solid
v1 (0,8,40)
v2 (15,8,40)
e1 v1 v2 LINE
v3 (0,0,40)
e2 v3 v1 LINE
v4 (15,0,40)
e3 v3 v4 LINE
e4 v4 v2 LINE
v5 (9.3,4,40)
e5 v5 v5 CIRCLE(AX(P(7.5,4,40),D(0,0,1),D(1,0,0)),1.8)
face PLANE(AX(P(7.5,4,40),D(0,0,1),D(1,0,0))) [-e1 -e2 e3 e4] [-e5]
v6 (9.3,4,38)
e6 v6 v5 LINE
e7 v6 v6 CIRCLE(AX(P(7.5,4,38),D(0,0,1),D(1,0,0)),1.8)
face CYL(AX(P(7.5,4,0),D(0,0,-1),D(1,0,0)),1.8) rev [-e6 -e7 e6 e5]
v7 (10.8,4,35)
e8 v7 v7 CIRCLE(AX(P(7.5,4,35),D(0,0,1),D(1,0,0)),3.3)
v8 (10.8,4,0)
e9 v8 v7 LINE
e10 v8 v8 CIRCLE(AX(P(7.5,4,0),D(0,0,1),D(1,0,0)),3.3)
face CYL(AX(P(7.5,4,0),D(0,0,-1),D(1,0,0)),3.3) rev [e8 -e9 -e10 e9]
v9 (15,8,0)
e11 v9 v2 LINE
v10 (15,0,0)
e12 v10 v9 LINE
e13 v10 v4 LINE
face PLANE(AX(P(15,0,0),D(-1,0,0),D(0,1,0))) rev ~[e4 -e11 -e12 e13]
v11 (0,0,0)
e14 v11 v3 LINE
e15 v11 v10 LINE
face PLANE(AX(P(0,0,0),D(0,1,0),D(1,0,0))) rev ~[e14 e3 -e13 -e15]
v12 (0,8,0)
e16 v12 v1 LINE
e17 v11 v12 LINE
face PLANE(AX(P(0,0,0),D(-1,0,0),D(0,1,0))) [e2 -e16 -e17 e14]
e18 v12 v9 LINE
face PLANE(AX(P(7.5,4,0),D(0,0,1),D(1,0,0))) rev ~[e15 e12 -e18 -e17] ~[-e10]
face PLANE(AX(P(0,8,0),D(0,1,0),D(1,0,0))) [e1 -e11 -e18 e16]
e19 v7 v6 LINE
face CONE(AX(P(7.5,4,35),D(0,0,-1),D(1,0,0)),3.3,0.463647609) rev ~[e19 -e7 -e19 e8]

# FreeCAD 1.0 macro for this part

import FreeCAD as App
import Part
import Sketcher
from FreeCAD import Vector
Q = App.Units.Quantity


def add_polygon(sketch, points):
    """Adds a closed chain of lines whose ends are joined by coincident constraints."""
    first, n = sketch.GeometryCount, len(points)
    for a, b in zip(points, points[1:] + points[:1]):
        sketch.addGeometry(Part.LineSegment(App.Vector(*a, 0), App.Vector(*b, 0)), False)
    for i in range(n):
        sketch.addConstraint(Sketcher.Constraint("Coincident", first + i, 2, first + (i + 1) % n, 1))

doc = App.newDocument("Part")
body = doc.addObject("PartDesign::Body", "Body")

# Sketch on XZ plane
sketch1 = doc.addObject("Sketcher::SketchObject", "Sketch")
body.addObject(sketch1)
sketch1.AttachmentSupport = (doc.XZ_Plane, [""])
sketch1.MapMode = "FlatFace"
sketch1.AttachmentOffset = App.Placement(Vector(0, 0, -4), App.Rotation())
add_polygon(sketch1, [(7.5, 35), (10.8, 35), (9.3, 38), (7.5, 38)])  # lines 0-3
sketch1.addGeometry(Part.LineSegment(Vector(7.5, 35, 0), Vector(7.5, 38, 0)), True)  # axis
sketch1.addConstraint(Sketcher.Constraint("Horizontal", 0))
sketch1.addConstraint(Sketcher.Constraint("Horizontal", 2))
sketch1.addConstraint(Sketcher.Constraint("Vertical", 3))
sketch1.addConstraint(Sketcher.Constraint("Vertical", 4))
sketch1.addConstraint(Sketcher.Constraint("Coincident", 4, 1, 3, 2))
sketch1.addConstraint(Sketcher.Constraint("Horizontal", 1, 2, 4, 2))
sketch1.addConstraint(Sketcher.Constraint("DistanceY", 3, 2, 3, 1, Q("3 mm")))
sketch1.addConstraint(Sketcher.Constraint("DistanceX", 0, 1, 0, 2, Q("3.3 mm")))
sketch1.addConstraint(Sketcher.Constraint("DistanceX", 2, 2, 2, 1, Q("1.8 mm")))
sketch1.addConstraint(Sketcher.Constraint("DistanceY", -1, 1, 0, 2, Q("35 mm")))
sketch1.addConstraint(Sketcher.Constraint("DistanceX", -1, 1, 0, 2, Q("10.8 mm")))
revolution = doc.addObject("PartDesign::Revolution", "Revolution")
body.addObject(revolution)
revolution.Profile = sketch1
revolution.ReferenceAxis = (sketch1, ["Axis0"])
revolution.Angle = 360
body2 = doc.addObject("PartDesign::Body", "Body001")

# Sketch on XY plane
sketch2 = doc.addObject("Sketcher::SketchObject", "Sketch001")
body2.addObject(sketch2)
sketch2.AttachmentSupport = (doc.getObject("XY_Plane001"), [""])
sketch2.MapMode = "FlatFace"
sketch2.addGeometry(Part.Circle(Vector(7.5, 4, 0), Vector(0, 0, 1), 3.3), False)
sketch2.addConstraint(Sketcher.Constraint("Diameter", 0, Q("6.6 mm")))
sketch2.addConstraint(Sketcher.Constraint("DistanceY", -1, 1, 0, 3, Q("4 mm")))
sketch2.addConstraint(Sketcher.Constraint("DistanceX", -1, 1, 0, 3, Q("7.5 mm")))
pad1 = doc.addObject("PartDesign::Pad", "Pad")
body2.addObject(pad1)
pad1.Profile = sketch2
pad1.Length = 35
body3 = doc.addObject("PartDesign::Body", "Body002")

# Sketch on XY plane
sketch3 = doc.addObject("Sketcher::SketchObject", "Sketch002")
body3.addObject(sketch3)
sketch3.AttachmentSupport = (doc.getObject("XY_Plane002"), [""])
sketch3.MapMode = "FlatFace"
sketch3.addGeometry(Part.Circle(Vector(7.5, 4, 0), Vector(0, 0, 1), 1.8), False)
sketch3.addConstraint(Sketcher.Constraint("Diameter", 0, Q("3.6 mm")))
sketch3.addConstraint(Sketcher.Constraint("DistanceY", -1, 1, 0, 3, Q("4 mm")))
sketch3.addConstraint(Sketcher.Constraint("DistanceX", -1, 1, 0, 3, Q("7.5 mm")))
pad2 = doc.addObject("PartDesign::Pad", "Pad001")
body3.addObject(pad2)
pad2.Profile = sketch3
pad2.Length = 40
doc.recompute()

boolean = doc.addObject("PartDesign::Boolean", "Boolean")
body3.addObject(boolean)
boolean.Type = "Fuse"
boolean.addObjects([body])
doc.recompute()

boolean2 = doc.addObject("PartDesign::Boolean", "Boolean001")
body3.addObject(boolean2)
boolean2.Type = "Fuse"
boolean2.addObjects([body2])
body4 = doc.addObject("PartDesign::Body", "Body003")

# Sketch on XY plane
sketch4 = doc.addObject("Sketcher::SketchObject", "Sketch003")
body4.addObject(sketch4)
sketch4.AttachmentSupport = (doc.getObject("XY_Plane003"), [""])
sketch4.MapMode = "FlatFace"
add_polygon(sketch4, [(0, 8), (0, 0), (15, 0), (15, 8)])  # lines 0-3
sketch4.addConstraint(Sketcher.Constraint("Vertical", 0))
sketch4.addConstraint(Sketcher.Constraint("Horizontal", 1))
sketch4.addConstraint(Sketcher.Constraint("Vertical", 2))
sketch4.addConstraint(Sketcher.Constraint("Horizontal", 3))
sketch4.addConstraint(Sketcher.Constraint("Coincident", 0, 2, -1, 1))
sketch4.addConstraint(Sketcher.Constraint("DistanceX", 1, 1, 1, 2, Q("15 mm")))
sketch4.addConstraint(Sketcher.Constraint("DistanceY", 0, 2, 0, 1, Q("8 mm")))
pad3 = doc.addObject("PartDesign::Pad", "Pad002")
body4.addObject(pad3)
pad3.Profile = sketch4
pad3.Length = 40
doc.recompute()

boolean3 = doc.addObject("PartDesign::Boolean", "Boolean002")
body4.addObject(boolean3)
boolean3.Type = "Cut"
boolean3.addObjects([body3])

doc.recompute()
